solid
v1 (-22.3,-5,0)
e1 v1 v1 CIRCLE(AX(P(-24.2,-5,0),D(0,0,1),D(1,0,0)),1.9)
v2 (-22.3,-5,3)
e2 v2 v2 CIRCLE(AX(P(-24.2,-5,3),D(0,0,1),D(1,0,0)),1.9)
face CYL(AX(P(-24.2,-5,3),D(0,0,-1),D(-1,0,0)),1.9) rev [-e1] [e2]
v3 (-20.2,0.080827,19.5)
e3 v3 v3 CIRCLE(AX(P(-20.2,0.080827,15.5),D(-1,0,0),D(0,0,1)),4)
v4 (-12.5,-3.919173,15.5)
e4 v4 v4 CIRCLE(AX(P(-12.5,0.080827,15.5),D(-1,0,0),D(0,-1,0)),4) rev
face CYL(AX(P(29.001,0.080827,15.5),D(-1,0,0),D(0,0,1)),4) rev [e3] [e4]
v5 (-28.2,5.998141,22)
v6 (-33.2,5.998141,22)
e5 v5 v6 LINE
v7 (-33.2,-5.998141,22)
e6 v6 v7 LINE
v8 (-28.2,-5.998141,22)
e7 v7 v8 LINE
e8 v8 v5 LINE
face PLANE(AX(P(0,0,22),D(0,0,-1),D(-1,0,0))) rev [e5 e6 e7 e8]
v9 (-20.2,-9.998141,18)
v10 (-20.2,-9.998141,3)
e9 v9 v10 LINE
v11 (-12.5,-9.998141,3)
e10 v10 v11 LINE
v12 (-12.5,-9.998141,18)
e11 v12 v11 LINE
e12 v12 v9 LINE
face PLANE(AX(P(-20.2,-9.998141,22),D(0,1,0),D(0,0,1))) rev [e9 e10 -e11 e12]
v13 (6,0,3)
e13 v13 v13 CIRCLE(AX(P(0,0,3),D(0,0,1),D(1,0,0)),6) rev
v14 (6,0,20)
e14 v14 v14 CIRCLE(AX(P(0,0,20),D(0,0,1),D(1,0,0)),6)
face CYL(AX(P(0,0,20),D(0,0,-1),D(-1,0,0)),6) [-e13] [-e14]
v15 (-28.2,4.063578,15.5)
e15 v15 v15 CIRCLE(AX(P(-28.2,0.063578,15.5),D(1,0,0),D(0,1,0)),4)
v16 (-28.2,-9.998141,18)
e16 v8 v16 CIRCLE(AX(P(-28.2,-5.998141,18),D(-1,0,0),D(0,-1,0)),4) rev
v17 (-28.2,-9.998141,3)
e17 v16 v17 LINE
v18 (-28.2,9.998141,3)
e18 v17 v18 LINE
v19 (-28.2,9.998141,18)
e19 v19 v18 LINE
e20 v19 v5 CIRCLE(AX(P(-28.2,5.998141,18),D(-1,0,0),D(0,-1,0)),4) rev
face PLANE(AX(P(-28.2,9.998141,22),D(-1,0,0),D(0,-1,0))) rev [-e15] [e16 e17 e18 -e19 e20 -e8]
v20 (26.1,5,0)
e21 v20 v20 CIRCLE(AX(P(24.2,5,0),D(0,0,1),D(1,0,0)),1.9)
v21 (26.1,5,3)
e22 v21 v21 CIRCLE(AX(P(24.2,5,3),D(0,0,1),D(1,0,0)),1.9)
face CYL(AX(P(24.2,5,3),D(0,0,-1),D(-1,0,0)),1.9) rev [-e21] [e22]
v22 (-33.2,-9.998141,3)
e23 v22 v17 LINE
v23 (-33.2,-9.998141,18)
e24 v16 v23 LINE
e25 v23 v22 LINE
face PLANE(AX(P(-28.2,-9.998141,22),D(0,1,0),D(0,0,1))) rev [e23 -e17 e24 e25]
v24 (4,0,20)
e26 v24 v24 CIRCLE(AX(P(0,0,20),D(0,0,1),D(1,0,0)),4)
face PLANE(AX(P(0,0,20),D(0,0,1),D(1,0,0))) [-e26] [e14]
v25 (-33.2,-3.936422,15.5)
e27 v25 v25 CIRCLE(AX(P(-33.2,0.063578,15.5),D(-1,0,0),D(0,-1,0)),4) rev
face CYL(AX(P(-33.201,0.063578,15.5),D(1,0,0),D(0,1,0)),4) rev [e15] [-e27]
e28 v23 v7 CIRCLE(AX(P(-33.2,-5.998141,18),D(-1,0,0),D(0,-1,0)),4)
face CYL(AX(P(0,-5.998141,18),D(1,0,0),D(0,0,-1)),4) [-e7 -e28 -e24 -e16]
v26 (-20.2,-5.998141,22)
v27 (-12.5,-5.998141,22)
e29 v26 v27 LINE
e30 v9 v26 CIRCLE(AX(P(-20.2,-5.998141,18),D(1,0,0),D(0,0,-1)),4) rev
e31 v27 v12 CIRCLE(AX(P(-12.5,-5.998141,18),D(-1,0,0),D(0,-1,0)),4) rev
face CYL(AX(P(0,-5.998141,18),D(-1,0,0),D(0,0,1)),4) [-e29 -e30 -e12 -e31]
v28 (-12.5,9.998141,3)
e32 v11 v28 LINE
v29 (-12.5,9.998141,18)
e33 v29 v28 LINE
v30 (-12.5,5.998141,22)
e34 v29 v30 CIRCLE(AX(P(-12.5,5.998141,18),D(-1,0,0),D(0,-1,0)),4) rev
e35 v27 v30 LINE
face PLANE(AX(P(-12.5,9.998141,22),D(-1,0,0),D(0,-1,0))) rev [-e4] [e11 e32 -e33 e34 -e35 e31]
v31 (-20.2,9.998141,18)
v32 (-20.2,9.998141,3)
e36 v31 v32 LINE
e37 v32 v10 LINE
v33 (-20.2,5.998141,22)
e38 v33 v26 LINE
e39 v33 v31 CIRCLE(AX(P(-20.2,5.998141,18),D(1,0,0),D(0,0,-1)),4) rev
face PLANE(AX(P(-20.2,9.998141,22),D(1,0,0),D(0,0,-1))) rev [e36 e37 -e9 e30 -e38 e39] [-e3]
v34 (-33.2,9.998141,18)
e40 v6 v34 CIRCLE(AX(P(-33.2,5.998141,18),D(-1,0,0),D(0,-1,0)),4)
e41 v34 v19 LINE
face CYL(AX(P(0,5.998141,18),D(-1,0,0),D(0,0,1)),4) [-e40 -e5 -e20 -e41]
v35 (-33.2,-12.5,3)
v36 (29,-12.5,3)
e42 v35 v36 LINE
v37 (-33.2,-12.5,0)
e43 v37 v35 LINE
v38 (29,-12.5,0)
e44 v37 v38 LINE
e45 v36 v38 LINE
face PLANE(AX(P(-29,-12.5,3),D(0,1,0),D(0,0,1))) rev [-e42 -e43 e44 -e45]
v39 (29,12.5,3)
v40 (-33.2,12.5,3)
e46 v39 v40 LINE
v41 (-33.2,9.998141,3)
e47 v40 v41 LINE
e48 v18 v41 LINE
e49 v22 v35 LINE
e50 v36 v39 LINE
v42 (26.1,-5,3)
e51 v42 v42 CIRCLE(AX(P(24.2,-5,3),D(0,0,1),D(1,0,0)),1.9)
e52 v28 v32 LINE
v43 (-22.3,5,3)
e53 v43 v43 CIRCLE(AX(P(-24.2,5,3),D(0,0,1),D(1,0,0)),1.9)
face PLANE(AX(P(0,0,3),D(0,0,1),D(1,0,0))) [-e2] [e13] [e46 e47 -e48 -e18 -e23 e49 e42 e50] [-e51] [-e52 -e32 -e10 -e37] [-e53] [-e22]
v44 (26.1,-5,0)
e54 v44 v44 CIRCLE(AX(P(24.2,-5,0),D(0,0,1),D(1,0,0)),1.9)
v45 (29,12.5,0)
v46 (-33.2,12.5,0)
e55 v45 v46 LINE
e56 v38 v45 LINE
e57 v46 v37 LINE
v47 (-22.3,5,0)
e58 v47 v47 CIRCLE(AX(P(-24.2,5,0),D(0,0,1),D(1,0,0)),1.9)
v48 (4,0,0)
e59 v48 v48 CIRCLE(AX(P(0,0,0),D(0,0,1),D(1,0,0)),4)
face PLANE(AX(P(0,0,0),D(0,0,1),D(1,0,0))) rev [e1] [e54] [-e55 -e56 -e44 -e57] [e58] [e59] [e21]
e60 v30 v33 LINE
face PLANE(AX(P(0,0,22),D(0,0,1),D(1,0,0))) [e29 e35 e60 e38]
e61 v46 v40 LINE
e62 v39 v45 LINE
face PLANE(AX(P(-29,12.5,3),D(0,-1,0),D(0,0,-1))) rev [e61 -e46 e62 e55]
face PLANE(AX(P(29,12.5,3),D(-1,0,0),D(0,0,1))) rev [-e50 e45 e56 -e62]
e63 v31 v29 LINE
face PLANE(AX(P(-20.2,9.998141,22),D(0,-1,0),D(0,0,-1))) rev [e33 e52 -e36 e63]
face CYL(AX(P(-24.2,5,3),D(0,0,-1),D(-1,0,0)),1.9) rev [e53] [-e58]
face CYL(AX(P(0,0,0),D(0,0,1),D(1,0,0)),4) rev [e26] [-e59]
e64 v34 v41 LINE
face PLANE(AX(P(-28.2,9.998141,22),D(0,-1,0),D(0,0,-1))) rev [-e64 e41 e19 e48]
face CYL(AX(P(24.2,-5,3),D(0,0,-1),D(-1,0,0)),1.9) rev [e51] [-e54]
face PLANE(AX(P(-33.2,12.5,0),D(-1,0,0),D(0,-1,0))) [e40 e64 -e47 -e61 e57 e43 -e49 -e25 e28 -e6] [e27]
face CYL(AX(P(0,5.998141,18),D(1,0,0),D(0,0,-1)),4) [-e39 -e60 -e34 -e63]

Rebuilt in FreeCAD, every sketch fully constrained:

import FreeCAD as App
import Part
import Sketcher

V = App.Vector


def edges_at(feature, points):
    """Names of the edges that pass closest to the given points."""
    edges = feature.Shape.Edges
    near = lambda p: min(range(len(edges)), key=lambda i: edges[i].distToShape(Part.Vertex(*p))[0])
    return sorted({f"Edge{near(p) + 1}" for p in points})


def add_polygon(sketch, points):
    """Adds a closed chain of lines whose ends are joined by coincident constraints."""
    first, n = sketch.GeometryCount, len(points)
    for a, b in zip(points, points[1:] + points[:1]):
        sketch.addGeometry(Part.LineSegment(App.Vector(*a, 0), App.Vector(*b, 0)), False)
    for i in range(n):
        sketch.addConstraint(Sketcher.Constraint("Coincident", first + i, 2, first + (i + 1) % n, 1))

doc = App.newDocument("Part")
params = doc.addObject("Spreadsheet::Sheet", "Params")
for row, (alias, value) in enumerate([
    ("sketch1_diameter", "3.8 mm"),
    ("sketch1_width", "58 mm"),
    ("sketch1_height", "25 mm"),
    ("pad1_length", "3 mm"),
    ("sketch2_diameter", "12 mm"),
    ("pad2_length", "20 mm"),
    ("sketch3_diameter", "8 mm"),
    ("sketch4_width", "7.7 mm"),
    ("pad3_length", "19 mm"),
    ("sketch5_diameter", "8 mm"),
    ("fillet_radius", "4 mm"),
    ("sketch6_height", "25 mm"),
    ("sketch6_width", "4.2 mm"),
    ("pad4_length", "3 mm"),
    ("sketch7_width", "5 mm"),
    ("pad5_length", "19 mm"),
    ("sketch8_diameter", "8 mm"),
    ("fillet2_radius", "4 mm"),
], start=1):
    params.set(f"A{row}", alias)
    params.set(f"B{row}", "=" + value)
    params.setAlias(f"B{row}", alias)

body = doc.addObject("PartDesign::Body", "Body")

sketch1 = doc.addObject("Sketcher::SketchObject", "Sketch")
body.addObject(sketch1)
sketch1.AttachmentSupport = (doc.XY_Plane, [""])
sketch1.MapMode = "FlatFace"
add_polygon(sketch1, [(-29, 12.5), (-29, -12.5), (29, -12.5), (29, 12.5)])
sketch1.addGeometry(Part.Circle(V(-24.2, -5, 0), V(0, 0, 1), 1.9), False)
sketch1.addGeometry(Part.Circle(V(24.2, -5, 0), V(0, 0, 1), 1.9), False)
sketch1.addGeometry(Part.Circle(V(-24.2, 5, 0), V(0, 0, 1), 1.9), False)
sketch1.addGeometry(Part.Circle(V(24.2, 5, 0), V(0, 0, 1), 1.9), False)
sketch1.addConstraint([
    Sketcher.Constraint("Vertical", 0),
    Sketcher.Constraint("Horizontal", 1),
    Sketcher.Constraint("Vertical", 2),
    Sketcher.Constraint("Horizontal", 3),
    Sketcher.Constraint("Equal", 4, 5),
    Sketcher.Constraint("Equal", 5, 6),
    Sketcher.Constraint("Equal", 6, 7),
    Sketcher.Constraint("Symmetric", 5, 3, 6, 3, -1, 1),
    Sketcher.Constraint("Symmetric", 4, 3, 7, 3, -1, 1),
    Sketcher.Constraint("Symmetric", 0, 2, 2, 2, -1, 1),
    Sketcher.Constraint("Symmetric", 4, 3, 5, 3, -2),
    Sketcher.Constraint("Diameter", 4, 3.8),
    Sketcher.Constraint("DistanceX", 1, 1, 1, 2, 58.0),
    Sketcher.Constraint("DistanceY", 0, 2, 0, 1, 25.0),
    Sketcher.Constraint("DistanceY", 4, 3, -1, 1, 5.0),
    Sketcher.Constraint("DistanceX", 4, 3, -1, 1, 24.2),
])
sketch1.setExpression("Constraints[15]", "Params.sketch1_diameter")
sketch1.setExpression("Constraints[16]", "Params.sketch1_width")
sketch1.setExpression("Constraints[17]", "Params.sketch1_height")
pad1 = doc.addObject("PartDesign::Pad", "Pad")
body.addObject(pad1)
pad1.Profile = sketch1
pad1.setExpression("Length", "Params.pad1_length")

sketch2 = doc.addObject("Sketcher::SketchObject", "Sketch001")
body.addObject(sketch2)
sketch2.AttachmentSupport = (doc.XY_Plane, [""])
sketch2.MapMode = "FlatFace"
sketch2.addGeometry(Part.Circle(V(0, 0, 0), V(0, 0, 1), 6), False)
sketch2.addConstraint([
    Sketcher.Constraint("Coincident", 0, 3, -1, 1),
    Sketcher.Constraint("Diameter", 0, 12.0),
])
sketch2.setExpression("Constraints[1]", "Params.sketch2_diameter")
pad2 = doc.addObject("PartDesign::Pad", "Pad001")
body.addObject(pad2)
pad2.Profile = sketch2
pad2.setExpression("Length", "Params.pad2_length")

sketch3 = doc.addObject("Sketcher::SketchObject", "Sketch002")
body.addObject(sketch3)
sketch3.AttachmentSupport = (doc.XY_Plane, [""])
sketch3.MapMode = "FlatFace"
sketch3.AttachmentOffset = App.Placement(V(0, 0, 20), App.Rotation())
sketch3.addGeometry(Part.Circle(V(0, 0, 0), V(0, 0, 1), 4), False)
sketch3.addConstraint([
    Sketcher.Constraint("Coincident", 0, 3, -1, 1),
    Sketcher.Constraint("Diameter", 0, 8.0),
])
sketch3.setExpression("Constraints[1]", "Params.sketch3_diameter")
pocket1 = doc.addObject("PartDesign::Pocket", "Pocket")
body.addObject(pocket1)
pocket1.Profile = sketch3
pocket1.Type = "ThroughAll"

sketch4 = doc.addObject("Sketcher::SketchObject", "Sketch003")
body.addObject(sketch4)
sketch4.AttachmentSupport = (doc.XY_Plane, [""])
sketch4.MapMode = "FlatFace"
sketch4.AttachmentOffset = App.Placement(V(0, 0, 3), App.Rotation())
add_polygon(sketch4, [(-20, 10), (-20, -10), (-12, -10), (-12, 10)])
sketch4.addConstraint([
    Sketcher.Constraint("Vertical", 0),
    Sketcher.Constraint("Horizontal", 1),
    Sketcher.Constraint("Vertical", 2),
    Sketcher.Constraint("Horizontal", 3),
    Sketcher.Constraint("DistanceX", 1, 1, 1, 2, 7.7),
    Sketcher.Constraint("DistanceX", 0, 2, -1, 1, 20.2),
    Sketcher.Constraint("DistanceY", 0, 2, 0, 1, 19.996282),
    Sketcher.Constraint("DistanceY", 0, 2, -1, 1, 9.998141),
])
sketch4.setExpression("Constraints[8]", "Params.sketch4_width")
pad3 = doc.addObject("PartDesign::Pad", "Pad002")
body.addObject(pad3)
pad3.Profile = sketch4
pad3.setExpression("Length", "Params.pad3_length")

sketch5 = doc.addObject("Sketcher::SketchObject", "Sketch004")
body.addObject(sketch5)
sketch5.AttachmentSupport = (doc.YZ_Plane, [""])
sketch5.MapMode = "FlatFace"
sketch5.AttachmentOffset = App.Placement(V(0, 0, -20.2), App.Rotation())
sketch5.addGeometry(Part.Circle(V(0.1, 15.5, 0), V(0, 0, 1), 4), False)
sketch5.addConstraint([
    Sketcher.Constraint("Diameter", 0, 8.0),
    Sketcher.Constraint("DistanceY", -1, 1, 0, 3, 15.5),
    Sketcher.Constraint("DistanceX", -1, 1, 0, 3, 0.080827),
])
sketch5.setExpression("Constraints[0]", "Params.sketch5_diameter")
pocket2 = doc.addObject("PartDesign::Pocket", "Pocket001")
body.addObject(pocket2)
pocket2.Profile = sketch5
pocket2.Type = "UpToFirst"
pocket2.Reversed = True
doc.recompute()

fillet = doc.addObject("PartDesign::Fillet", "Fillet")
body.addObject(fillet)
fillet.Base = (pocket2, edges_at(pocket2, [(-16.35, 9.998, 22), (-16.35, -9.998, 22)]))
fillet.setExpression("Radius", "Params.fillet_radius")

sketch6 = doc.addObject("Sketcher::SketchObject", "Sketch005")
body.addObject(sketch6)
sketch6.AttachmentSupport = (doc.XY_Plane, [""])
sketch6.MapMode = "FlatFace"
sketch6.AttachmentOffset = App.Placement(V(0, 0, 3), App.Rotation())
add_polygon(sketch6, [(-33.2, 12.5), (-33.2, -12.5), (-29, -12.5), (-29, 12.5)])
sketch6.addConstraint([
    Sketcher.Constraint("Vertical", 0),
    Sketcher.Constraint("Horizontal", 1),
    Sketcher.Constraint("Vertical", 2),
    Sketcher.Constraint("Horizontal", 3),
    Sketcher.Constraint("DistanceY", 0, 2, 0, 1, 25.0),
    Sketcher.Constraint("DistanceX", 1, 1, 1, 2, 4.2),
    Sketcher.Constraint("DistanceX", 1, 2, -1, 1, 29.0),
    Sketcher.Constraint("DistanceY", 0, 2, -1, 1, 12.5),
])
sketch6.setExpression("Constraints[8]", "Params.sketch6_height")
sketch6.setExpression("Constraints[9]", "Params.sketch6_width")
pad4 = doc.addObject("PartDesign::Pad", "Pad003")
body.addObject(pad4)
pad4.Profile = sketch6
pad4.setExpression("Length", "Params.pad4_length")
pad4.Reversed = True

sketch7 = doc.addObject("Sketcher::SketchObject", "Sketch006")
body.addObject(sketch7)
sketch7.AttachmentSupport = (doc.XY_Plane, [""])
sketch7.MapMode = "FlatFace"
sketch7.AttachmentOffset = App.Placement(V(0, 0, 3), App.Rotation())
add_polygon(sketch7, [(-33, 10), (-33, -10), (-28, -10), (-28, 10)])
sketch7.addConstraint([
    Sketcher.Constraint("Vertical", 0),
    Sketcher.Constraint("Horizontal", 1),
    Sketcher.Constraint("Vertical", 2),
    Sketcher.Constraint("Horizontal", 3),
    Sketcher.Constraint("DistanceX", 1, 1, 1, 2, 5.0),
    Sketcher.Constraint("DistanceX", 0, 2, -1, 1, 33.2),
    Sketcher.Constraint("DistanceY", 0, 2, 0, 1, 19.996282),
    Sketcher.Constraint("DistanceY", 0, 2, -1, 1, 9.998141),
])
sketch7.setExpression("Constraints[8]", "Params.sketch7_width")
pad5 = doc.addObject("PartDesign::Pad", "Pad004")
body.addObject(pad5)
pad5.Profile = sketch7
pad5.setExpression("Length", "Params.pad5_length")

sketch8 = doc.addObject("Sketcher::SketchObject", "Sketch007")
body.addObject(sketch8)
sketch8.AttachmentSupport = (doc.YZ_Plane, [""])
sketch8.MapMode = "FlatFace"
sketch8.AttachmentOffset = App.Placement(V(0, 0, -28.2), App.Rotation())
sketch8.addGeometry(Part.Circle(V(0.1, 15.5, 0), V(0, 0, 1), 4), False)
sketch8.addConstraint([
    Sketcher.Constraint("Diameter", 0, 8.0),
    Sketcher.Constraint("DistanceY", -1, 1, 0, 3, 15.5),
    Sketcher.Constraint("DistanceX", -1, 1, 0, 3, 0.063578),
])
sketch8.setExpression("Constraints[0]", "Params.sketch8_diameter")
pocket3 = doc.addObject("PartDesign::Pocket", "Pocket002")
body.addObject(pocket3)
pocket3.Profile = sketch8
pocket3.Type = "UpToFirst"
doc.recompute()

fillet2 = doc.addObject("PartDesign::Fillet", "Fillet001")
body.addObject(fillet2)
fillet2.Base = (pocket3, edges_at(pocket3, [(-30.7, 9.998, 22), (-30.7, -9.998, 22)]))
fillet2.setExpression("Radius", "Params.fillet2_radius")

doc.recompute()
